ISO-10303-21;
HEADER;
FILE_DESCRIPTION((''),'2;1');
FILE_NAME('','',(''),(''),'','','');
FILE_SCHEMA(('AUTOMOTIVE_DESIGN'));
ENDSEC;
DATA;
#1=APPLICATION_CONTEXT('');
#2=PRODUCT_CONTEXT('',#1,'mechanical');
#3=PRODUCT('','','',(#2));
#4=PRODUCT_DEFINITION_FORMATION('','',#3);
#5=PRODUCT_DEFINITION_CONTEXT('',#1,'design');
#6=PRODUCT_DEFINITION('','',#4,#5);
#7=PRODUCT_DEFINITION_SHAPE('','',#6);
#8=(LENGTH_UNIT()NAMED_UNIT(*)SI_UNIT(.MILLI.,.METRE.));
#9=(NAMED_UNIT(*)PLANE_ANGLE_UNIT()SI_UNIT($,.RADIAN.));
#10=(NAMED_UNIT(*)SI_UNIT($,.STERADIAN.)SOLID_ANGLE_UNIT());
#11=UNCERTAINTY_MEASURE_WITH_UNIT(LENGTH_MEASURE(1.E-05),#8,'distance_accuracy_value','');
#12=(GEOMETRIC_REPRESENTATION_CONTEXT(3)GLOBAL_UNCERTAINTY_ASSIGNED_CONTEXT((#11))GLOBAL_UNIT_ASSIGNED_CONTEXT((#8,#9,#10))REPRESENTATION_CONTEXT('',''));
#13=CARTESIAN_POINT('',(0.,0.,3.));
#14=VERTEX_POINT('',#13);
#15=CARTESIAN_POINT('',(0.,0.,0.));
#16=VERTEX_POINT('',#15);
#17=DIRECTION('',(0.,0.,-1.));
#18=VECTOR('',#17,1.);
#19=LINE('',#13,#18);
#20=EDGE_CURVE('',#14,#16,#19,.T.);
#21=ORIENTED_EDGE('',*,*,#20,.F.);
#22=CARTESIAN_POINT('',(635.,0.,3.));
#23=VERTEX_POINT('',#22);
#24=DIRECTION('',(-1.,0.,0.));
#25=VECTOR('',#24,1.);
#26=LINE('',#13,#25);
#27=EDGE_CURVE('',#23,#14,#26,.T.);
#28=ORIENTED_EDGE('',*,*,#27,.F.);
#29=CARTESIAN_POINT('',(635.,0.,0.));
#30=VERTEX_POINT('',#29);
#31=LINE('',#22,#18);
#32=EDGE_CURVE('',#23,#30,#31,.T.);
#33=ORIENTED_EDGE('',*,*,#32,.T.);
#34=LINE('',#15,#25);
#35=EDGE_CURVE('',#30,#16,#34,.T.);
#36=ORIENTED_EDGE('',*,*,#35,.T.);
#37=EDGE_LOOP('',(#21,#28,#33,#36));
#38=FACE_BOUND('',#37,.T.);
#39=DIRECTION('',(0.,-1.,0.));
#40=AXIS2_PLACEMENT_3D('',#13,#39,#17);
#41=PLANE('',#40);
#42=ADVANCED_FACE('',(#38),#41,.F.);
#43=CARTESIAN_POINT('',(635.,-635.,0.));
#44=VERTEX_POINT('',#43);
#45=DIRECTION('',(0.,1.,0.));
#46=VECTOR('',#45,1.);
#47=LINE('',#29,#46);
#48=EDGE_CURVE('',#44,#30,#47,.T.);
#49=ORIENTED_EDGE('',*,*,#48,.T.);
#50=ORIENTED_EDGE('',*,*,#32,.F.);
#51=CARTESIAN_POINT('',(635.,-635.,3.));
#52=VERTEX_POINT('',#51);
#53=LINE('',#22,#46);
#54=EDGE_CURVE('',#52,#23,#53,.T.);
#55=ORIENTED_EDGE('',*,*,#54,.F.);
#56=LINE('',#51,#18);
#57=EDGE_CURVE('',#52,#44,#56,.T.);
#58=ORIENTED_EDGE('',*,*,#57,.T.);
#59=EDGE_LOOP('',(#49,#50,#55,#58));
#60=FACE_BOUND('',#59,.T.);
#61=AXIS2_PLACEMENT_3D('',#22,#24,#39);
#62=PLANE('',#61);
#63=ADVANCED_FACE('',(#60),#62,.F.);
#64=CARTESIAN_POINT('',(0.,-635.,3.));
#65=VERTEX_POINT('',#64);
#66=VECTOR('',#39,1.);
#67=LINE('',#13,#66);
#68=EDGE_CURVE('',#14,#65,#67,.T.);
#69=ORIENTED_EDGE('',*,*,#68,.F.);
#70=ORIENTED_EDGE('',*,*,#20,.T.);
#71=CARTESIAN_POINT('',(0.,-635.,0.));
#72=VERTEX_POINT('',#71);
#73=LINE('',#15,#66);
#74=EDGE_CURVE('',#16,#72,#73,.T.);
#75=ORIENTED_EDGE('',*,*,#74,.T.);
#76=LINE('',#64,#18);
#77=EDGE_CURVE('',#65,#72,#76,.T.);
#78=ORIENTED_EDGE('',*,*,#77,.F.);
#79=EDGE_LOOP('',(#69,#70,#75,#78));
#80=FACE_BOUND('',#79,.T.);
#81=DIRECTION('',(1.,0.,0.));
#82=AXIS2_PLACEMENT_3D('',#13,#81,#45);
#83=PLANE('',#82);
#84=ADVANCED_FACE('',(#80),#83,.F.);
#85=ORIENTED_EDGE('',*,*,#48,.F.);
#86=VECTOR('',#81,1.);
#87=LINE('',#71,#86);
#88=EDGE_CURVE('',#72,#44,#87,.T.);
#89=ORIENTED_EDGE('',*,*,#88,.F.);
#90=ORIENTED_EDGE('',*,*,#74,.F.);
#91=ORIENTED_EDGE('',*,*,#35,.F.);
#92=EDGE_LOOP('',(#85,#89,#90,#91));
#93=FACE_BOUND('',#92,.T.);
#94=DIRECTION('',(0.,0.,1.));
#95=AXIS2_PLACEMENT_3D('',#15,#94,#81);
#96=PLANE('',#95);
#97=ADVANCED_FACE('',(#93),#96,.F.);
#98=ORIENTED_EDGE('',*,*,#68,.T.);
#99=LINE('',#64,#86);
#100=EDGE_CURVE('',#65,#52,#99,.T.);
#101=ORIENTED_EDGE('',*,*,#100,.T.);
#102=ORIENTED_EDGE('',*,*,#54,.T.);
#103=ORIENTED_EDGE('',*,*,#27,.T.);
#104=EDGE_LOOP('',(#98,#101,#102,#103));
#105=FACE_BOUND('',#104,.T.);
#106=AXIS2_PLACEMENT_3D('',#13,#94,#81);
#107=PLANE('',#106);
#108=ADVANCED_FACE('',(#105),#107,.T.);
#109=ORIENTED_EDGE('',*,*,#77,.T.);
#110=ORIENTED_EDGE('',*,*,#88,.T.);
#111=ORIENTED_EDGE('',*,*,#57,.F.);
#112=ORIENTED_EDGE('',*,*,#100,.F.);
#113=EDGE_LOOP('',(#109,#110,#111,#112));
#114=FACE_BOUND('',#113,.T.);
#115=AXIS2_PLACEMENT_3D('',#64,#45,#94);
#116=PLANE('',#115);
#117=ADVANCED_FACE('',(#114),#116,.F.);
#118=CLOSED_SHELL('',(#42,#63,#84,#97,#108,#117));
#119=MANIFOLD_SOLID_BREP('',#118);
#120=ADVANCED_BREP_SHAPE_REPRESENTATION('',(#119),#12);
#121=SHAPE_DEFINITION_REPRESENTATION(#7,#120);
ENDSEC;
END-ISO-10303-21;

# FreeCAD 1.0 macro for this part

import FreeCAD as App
import Part
import Sketcher

V = App.Vector
Q = App.Units.Quantity

doc = App.newDocument("Part")
params = doc.addObject("Spreadsheet::Sheet", "Params")
for row, (alias, value) in enumerate([
    ("sketch1_width", "635 mm"),
    ("pad1_length", "3 mm"),
], start=1):
    params.set(f"A{row}", alias)
    params.set(f"B{row}", "=" + value)
    params.setAlias(f"B{row}", alias)

body = doc.addObject("PartDesign::Body", "Body")

sketch1 = doc.addObject("Sketcher::SketchObject", "Sketch")
body.addObject(sketch1)
sketch1.AttachmentSupport = (doc.XY_Plane, [""])
sketch1.MapMode = "FlatFace"
sketch1.addGeometry([
    Part.LineSegment(V(0, 0, 0), V(0, -635, 0)),
    Part.LineSegment(V(0, -635, 0), V(635, -635, 0)),
    Part.LineSegment(V(635, -635, 0), V(635, 0, 0)),
    Part.LineSegment(V(635, 0, 0), V(0, 0, 0)),
], False)
sketch1.addConstraint([
    Sketcher.Constraint("Coincident", 0, 2, 1, 1),
    Sketcher.Constraint("Coincident", 1, 2, 2, 1),
    Sketcher.Constraint("Coincident", 2, 2, 3, 1),
    Sketcher.Constraint("Coincident", 3, 2, 0, 1),
    Sketcher.Constraint("Vertical", 0),
    Sketcher.Constraint("Horizontal", 1),
    Sketcher.Constraint("Vertical", 2),
    Sketcher.Constraint("Horizontal", 3),
    Sketcher.Constraint("Coincident", 3, 2, -1, 1),
    Sketcher.Constraint("Equal", 3, 0),
    Sketcher.Constraint("DistanceX", 1, 1, 1, 2, Q("635 mm")),
])
sketch1.setExpression("Constraints[10]", "Params.sketch1_width")
pad1 = doc.addObject("PartDesign::Pad", "Pad")
body.addObject(pad1)
pad1.Profile = sketch1
pad1.setExpression("Length", "Params.pad1_length")

doc.recompute()
